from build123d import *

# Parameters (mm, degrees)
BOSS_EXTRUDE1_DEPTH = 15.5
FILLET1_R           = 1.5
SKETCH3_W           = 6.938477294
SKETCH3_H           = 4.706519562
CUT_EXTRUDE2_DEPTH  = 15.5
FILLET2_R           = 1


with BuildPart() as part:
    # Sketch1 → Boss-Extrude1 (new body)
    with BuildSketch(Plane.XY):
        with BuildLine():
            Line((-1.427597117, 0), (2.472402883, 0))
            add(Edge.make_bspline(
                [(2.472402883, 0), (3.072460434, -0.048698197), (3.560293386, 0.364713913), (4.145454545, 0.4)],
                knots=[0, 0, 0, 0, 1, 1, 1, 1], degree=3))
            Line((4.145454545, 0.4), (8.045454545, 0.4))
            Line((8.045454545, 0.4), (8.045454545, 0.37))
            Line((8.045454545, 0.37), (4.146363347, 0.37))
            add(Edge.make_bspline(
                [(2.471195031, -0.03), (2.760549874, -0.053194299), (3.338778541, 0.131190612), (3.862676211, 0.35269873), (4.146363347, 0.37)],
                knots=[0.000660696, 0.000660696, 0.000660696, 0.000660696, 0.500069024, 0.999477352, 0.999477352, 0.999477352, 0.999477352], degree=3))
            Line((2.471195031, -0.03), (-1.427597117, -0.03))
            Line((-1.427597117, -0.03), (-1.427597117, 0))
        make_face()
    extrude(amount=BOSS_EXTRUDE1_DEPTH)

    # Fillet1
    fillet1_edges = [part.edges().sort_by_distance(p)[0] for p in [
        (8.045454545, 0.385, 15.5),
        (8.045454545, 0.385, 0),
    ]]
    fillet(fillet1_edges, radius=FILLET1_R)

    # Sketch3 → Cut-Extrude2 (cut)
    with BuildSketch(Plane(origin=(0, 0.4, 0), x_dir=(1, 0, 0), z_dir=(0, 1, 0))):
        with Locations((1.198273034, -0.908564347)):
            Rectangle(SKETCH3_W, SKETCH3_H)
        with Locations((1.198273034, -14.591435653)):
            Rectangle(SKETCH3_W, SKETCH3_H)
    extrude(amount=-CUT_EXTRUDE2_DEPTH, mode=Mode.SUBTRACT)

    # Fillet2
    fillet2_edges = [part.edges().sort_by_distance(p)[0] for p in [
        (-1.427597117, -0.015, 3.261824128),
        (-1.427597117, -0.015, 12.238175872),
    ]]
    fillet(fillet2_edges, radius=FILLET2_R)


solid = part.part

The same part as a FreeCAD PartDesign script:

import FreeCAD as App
import Part
import Sketcher

V = App.Vector


def edges_at(feature, points):
    """Names of the edges that pass closest to the given points."""
    edges = feature.Shape.Edges
    near = lambda p: min(range(len(edges)), key=lambda i: edges[i].distToShape(Part.Vertex(*p))[0])
    return sorted({f"Edge{near(p) + 1}" for p in points})


def add_polygon(sketch, points):
    """Adds a closed chain of lines whose ends are joined by coincident constraints."""
    first, n = sketch.GeometryCount, len(points)
    for a, b in zip(points, points[1:] + points[:1]):
        sketch.addGeometry(Part.LineSegment(App.Vector(*a, 0), App.Vector(*b, 0)), False)
    for i in range(n):
        sketch.addConstraint(Sketcher.Constraint("Coincident", first + i, 2, first + (i + 1) % n, 1))

doc = App.newDocument("Part")
body = doc.addObject("PartDesign::Body", "Body")

# Sketch on XY plane
sketch1 = body.newObject("Sketcher::SketchObject", "Sketch")
sketch1.AttachmentSupport = (doc.getObject("XY_Plane"), [""])
sketch1.MapMode = "FlatFace"
sketch1.addGeometry([
    Part.LineSegment(V(2.472403, 0, 0), V(-1.427597, 0, 0)),  # 0
    Part.LineSegment(V(-1.427597, 0, 0), V(-1.427597, -0.03, 0)),  # 1
    Part.LineSegment(V(-1.427597, -0.03, 0), V(2.471195, -0.03, 0)),  # 2
    Part.BSplineCurve([V(2.471195, -0.03, 0), V(2.76055, -0.053194, 0), V(3.338779, 0.131191, 0), V(3.862676, 0.352699, 0), V(4.146363, 0.37, 0)], [4, 1, 4], [0.000660696, 0.500069024, 0.999477352], False, 3, [1, 1, 1, 1, 1], False),  # 3
    Part.LineSegment(V(4.146363, 0.37, 0), V(8.045455, 0.37, 0)),  # 4
    Part.LineSegment(V(8.045455, 0.37, 0), V(8.045455, 0.4, 0)),  # 5
    Part.LineSegment(V(8.045455, 0.4, 0), V(4.145455, 0.4, 0)),  # 6
    Part.BSplineCurve([V(2.472403, 0, 0), V(3.07246, -0.048698, 0), V(3.560293, 0.364714, 0), V(4.145455, 0.4, 0)], [4, 4], [0, 1], False, 3, [1, 1, 1, 1], False),  # 7
], False)
sketch1.addConstraint([
    Sketcher.Constraint("Block", 3),
    Sketcher.Constraint("Block", 7),
    Sketcher.Constraint("Coincident", 0, 2, 1, 1),
    Sketcher.Constraint("Coincident", 1, 2, 2, 1),
    Sketcher.Constraint("Coincident", 2, 2, 3, 1),
    Sketcher.Constraint("Coincident", 3, 2, 4, 1),
    Sketcher.Constraint("Coincident", 4, 2, 5, 1),
    Sketcher.Constraint("Coincident", 5, 2, 6, 1),
    Sketcher.Constraint("Coincident", 6, 2, 7, 2),
    Sketcher.Constraint("Coincident", 7, 1, 0, 1),
    Sketcher.Constraint("Horizontal", 0),
    Sketcher.Constraint("Vertical", 1),
    Sketcher.Constraint("Horizontal", 2),
    Sketcher.Constraint("Horizontal", 4),
    Sketcher.Constraint("Vertical", 5),
    Sketcher.Constraint("Horizontal", 6),
    Sketcher.Constraint("Equal", 0, 6),
    Sketcher.Constraint("DistanceX", 0, 2, 0, 1, 3.9),
])
pad1 = body.newObject("PartDesign::Pad", "Pad")
pad1.Profile = sketch1
pad1.Length = 15.5
doc.recompute()

fillet = body.newObject("PartDesign::Fillet", "Fillet")
fillet.Base = (pad1, edges_at(pad1, [(8.045, 0.385, 15.5), (8.045, 0.385, 0)]))
fillet.Radius = 1.5

# Sketch on XZ plane
sketch2 = body.newObject("Sketcher::SketchObject", "Sketch001")
sketch2.AttachmentSupport = (doc.getObject("XZ_Plane"), [""])
sketch2.MapMode = "FlatFace"
sketch2.AttachmentOffset = App.Placement(V(0, 0, -0.4), App.Rotation())
add_polygon(sketch2, [(-2.3, -1.4), (-2.3, 3.3), (4.7, 3.3), (4.7, -1.4)])  # lines 0-3
add_polygon(sketch2, [(-2.3, 12.2), (-2.3, 16.9), (4.7, 16.9), (4.7, 12.2)])  # lines 4-7
sketch2.addConstraint([
    Sketcher.Constraint("Vertical", 0),
    Sketcher.Constraint("Horizontal", 1),
    Sketcher.Constraint("Vertical", 2),
    Sketcher.Constraint("Horizontal", 3),
    Sketcher.Constraint("Vertical", 4),
    Sketcher.Constraint("Horizontal", 5),
    Sketcher.Constraint("Vertical", 6),
    Sketcher.Constraint("Horizontal", 7),
    Sketcher.Constraint("Vertical", 3, 2, 4, 2),
    Sketcher.Constraint("Vertical", 2, 2, 5, 2),
    Sketcher.Constraint("Equal", 2, 4),
    Sketcher.Constraint("DistanceY", 0, 1, 0, 2, 4.70652),
    Sketcher.Constraint("DistanceX", 1, 1, 1, 2, 6.938477),
    Sketcher.Constraint("DistanceX", -1, 1, 1, 2, 4.667512),
    Sketcher.Constraint("DistanceY", 0, 2, 4, 2, 13.682871),
    Sketcher.Constraint("DistanceY", -1, 1, 0, 2, 3.261824),
])
pocket1 = body.newObject("PartDesign::Pocket", "Pocket")
pocket1.Profile = sketch2
pocket1.Length = 15.5
pocket1.Reversed = True
doc.recompute()

fillet2 = body.newObject("PartDesign::Fillet", "Fillet001")
fillet2.Base = (pocket1, edges_at(pocket1, [(-1.428, -0.015, 3.262), (-1.428, -0.015, 12.238)]))
fillet2.Radius = 1

doc.recompute()
